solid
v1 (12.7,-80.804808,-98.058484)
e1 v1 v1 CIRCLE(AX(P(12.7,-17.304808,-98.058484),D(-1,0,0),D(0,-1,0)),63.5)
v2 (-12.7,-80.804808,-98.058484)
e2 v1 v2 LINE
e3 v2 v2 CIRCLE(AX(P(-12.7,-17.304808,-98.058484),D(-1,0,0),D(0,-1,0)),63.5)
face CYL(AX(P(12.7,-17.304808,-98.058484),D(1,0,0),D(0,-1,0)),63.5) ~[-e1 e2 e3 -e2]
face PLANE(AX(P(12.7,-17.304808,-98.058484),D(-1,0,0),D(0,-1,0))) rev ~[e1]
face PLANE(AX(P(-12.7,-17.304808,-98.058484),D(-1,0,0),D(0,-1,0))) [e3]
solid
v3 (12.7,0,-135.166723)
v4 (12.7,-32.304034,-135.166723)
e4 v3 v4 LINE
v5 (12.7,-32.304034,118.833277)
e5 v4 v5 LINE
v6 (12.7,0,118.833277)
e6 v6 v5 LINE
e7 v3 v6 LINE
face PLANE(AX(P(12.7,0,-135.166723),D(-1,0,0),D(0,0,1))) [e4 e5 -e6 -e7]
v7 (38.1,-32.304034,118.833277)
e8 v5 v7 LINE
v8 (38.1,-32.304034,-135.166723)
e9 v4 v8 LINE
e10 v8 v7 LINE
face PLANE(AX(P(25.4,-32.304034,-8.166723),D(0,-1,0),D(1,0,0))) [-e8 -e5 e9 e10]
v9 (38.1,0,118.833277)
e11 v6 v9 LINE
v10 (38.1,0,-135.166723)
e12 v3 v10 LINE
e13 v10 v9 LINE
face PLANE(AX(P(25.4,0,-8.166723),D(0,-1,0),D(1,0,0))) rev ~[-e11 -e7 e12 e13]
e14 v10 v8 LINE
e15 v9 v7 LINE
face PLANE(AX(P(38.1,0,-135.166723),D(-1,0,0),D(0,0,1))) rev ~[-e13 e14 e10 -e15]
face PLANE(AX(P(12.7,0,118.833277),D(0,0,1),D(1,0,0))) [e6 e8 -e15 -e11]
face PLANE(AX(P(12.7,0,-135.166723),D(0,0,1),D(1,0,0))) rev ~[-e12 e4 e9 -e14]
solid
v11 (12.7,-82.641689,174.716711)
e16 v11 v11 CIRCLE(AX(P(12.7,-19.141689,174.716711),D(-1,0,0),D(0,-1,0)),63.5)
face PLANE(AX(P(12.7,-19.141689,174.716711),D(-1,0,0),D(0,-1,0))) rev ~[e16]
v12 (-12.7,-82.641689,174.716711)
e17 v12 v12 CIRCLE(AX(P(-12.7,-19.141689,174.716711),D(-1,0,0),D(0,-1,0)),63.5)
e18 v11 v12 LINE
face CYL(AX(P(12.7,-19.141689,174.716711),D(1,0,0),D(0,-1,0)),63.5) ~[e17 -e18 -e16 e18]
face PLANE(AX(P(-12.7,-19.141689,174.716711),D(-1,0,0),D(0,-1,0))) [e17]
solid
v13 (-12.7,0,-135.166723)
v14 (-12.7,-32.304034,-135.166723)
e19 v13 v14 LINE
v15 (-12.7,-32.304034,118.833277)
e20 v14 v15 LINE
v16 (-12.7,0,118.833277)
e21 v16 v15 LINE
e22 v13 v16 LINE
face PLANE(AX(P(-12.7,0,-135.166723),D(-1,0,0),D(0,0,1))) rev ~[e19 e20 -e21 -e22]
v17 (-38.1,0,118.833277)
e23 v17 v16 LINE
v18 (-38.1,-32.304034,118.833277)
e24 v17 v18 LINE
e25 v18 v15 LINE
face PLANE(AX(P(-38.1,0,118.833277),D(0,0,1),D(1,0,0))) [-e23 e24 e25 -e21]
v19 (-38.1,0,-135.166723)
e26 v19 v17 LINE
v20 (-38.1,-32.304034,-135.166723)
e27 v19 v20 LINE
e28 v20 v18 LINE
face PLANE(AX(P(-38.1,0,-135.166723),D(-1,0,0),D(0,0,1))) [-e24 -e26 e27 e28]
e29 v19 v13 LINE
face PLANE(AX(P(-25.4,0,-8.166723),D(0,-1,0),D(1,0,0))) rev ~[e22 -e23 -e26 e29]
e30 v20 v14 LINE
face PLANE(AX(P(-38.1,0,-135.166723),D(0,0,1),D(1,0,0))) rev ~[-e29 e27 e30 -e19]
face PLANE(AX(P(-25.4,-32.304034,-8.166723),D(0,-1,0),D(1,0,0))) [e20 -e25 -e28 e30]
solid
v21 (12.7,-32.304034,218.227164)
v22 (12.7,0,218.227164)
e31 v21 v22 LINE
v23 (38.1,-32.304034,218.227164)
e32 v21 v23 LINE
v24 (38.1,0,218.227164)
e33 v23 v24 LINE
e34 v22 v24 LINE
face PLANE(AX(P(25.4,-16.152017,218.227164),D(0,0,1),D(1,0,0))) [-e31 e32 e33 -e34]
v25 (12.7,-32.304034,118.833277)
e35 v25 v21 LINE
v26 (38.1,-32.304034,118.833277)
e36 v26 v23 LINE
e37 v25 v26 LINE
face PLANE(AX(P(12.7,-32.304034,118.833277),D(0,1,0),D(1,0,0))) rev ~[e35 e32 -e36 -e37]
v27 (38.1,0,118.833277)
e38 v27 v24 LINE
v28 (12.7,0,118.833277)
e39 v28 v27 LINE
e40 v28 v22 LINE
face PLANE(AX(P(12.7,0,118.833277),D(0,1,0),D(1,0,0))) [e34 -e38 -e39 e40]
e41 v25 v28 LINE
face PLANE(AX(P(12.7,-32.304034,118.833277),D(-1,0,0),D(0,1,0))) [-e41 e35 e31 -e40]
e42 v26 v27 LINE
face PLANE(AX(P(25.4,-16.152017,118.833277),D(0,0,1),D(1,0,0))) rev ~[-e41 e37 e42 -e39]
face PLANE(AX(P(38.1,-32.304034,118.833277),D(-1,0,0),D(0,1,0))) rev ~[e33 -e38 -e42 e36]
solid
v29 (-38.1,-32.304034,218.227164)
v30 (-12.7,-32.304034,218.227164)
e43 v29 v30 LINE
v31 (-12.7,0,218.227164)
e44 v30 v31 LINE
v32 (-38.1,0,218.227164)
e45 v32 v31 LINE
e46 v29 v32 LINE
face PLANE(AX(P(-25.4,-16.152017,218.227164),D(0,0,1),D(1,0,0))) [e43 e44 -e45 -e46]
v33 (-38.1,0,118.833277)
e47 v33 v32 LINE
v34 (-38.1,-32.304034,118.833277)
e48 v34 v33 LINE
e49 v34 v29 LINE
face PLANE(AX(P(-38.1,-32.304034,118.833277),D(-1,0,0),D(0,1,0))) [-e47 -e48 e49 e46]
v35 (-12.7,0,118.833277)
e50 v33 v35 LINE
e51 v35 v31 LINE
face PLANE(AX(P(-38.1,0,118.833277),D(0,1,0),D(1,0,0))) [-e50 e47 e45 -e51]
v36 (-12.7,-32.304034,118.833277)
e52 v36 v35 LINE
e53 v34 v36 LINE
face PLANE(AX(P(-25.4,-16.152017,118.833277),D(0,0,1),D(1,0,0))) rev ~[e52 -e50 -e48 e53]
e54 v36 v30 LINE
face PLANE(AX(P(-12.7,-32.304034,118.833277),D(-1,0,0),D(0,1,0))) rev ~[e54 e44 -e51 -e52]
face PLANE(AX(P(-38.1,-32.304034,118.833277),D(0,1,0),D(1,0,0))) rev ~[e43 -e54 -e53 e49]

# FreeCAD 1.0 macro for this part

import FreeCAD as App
import Part
import Sketcher
Q = App.Units.Quantity


def add_polygon(sketch, points):
    """Adds a closed chain of lines whose ends are joined by coincident constraints."""
    first, n = sketch.GeometryCount, len(points)
    for a, b in zip(points, points[1:] + points[:1]):
        sketch.addGeometry(Part.LineSegment(App.Vector(*a, 0), App.Vector(*b, 0)), False)
    for i in range(n):
        sketch.addConstraint(Sketcher.Constraint("Coincident", first + i, 2, first + (i + 1) % n, 1))

doc = App.newDocument("Part")
params = doc.addObject("Spreadsheet::Sheet", "Params")
for row, (alias, value) in enumerate([
    ("sketch1_width", "1 in"),
    ("sketch1_height", "10 in"),
    ("pad1_length", "32.304034 mm"),
    ("sketch2_width", "1 in"),
    ("pad2_length", "99.393887 mm"),
    ("sketch3_diameter", "5 in"),
    ("pad3_length", "1 in"),
], start=1):
    params.set(f"A{row}", alias)
    params.set(f"B{row}", "=" + value)
    params.setAlias(f"B{row}", alias)

body = doc.addObject("PartDesign::Body", "Body")
body.AllowCompound = True

sketch1 = doc.addObject("Sketcher::SketchObject", "Sketch")
body.addObject(sketch1)
sketch1.AttachmentSupport = (doc.XZ_Plane, [""])
sketch1.MapMode = "FlatFace"
add_polygon(sketch1, [(-38, 119), (-38, -135), (-13, -135), (-13, 119)])
add_polygon(sketch1, [(13, 119), (13, -135), (38, -135), (38, 119)])
sketch1.addConstraint(Sketcher.Constraint("Vertical", 0))
sketch1.addConstraint(Sketcher.Constraint("Horizontal", 1))
sketch1.addConstraint(Sketcher.Constraint("Vertical", 2))
sketch1.addConstraint(Sketcher.Constraint("Horizontal", 3))
sketch1.addConstraint(Sketcher.Constraint("Vertical", 4))
sketch1.addConstraint(Sketcher.Constraint("Horizontal", 5))
sketch1.addConstraint(Sketcher.Constraint("Vertical", 6))
sketch1.addConstraint(Sketcher.Constraint("Horizontal", 7))
sketch1.addConstraint(Sketcher.Constraint("Symmetric", 1, 2, 4, 2, -2))
sketch1.addConstraint(Sketcher.Constraint("Symmetric", 3, 2, 6, 2, -2))
sketch1.addConstraint(Sketcher.Constraint("DistanceX", 1, 1, 1, 2, Q("1 in")))
sketch1.addConstraint(Sketcher.Constraint("DistanceY", 0, 2, 0, 1, Q("10 in")))
sketch1.addConstraint(Sketcher.Constraint("DistanceX", 1, 2, 4, 2, Q("1 in")))
sketch1.addConstraint(Sketcher.Constraint("DistanceY", 0, 2, -1, 1, 135.166723))
sketch1.setExpression("Constraints[18]", "Params.sketch1_width")
sketch1.setExpression("Constraints[19]", "Params.sketch1_height")
pad1 = doc.addObject("PartDesign::Pad", "Pad")
body.addObject(pad1)
pad1.Profile = sketch1
pad1.setExpression("Length", "Params.pad1_length")
body2 = doc.addObject("PartDesign::Body", "Body001")
body2.AllowCompound = True

sketch2 = doc.addObject("Sketcher::SketchObject", "Sketch001")
body2.addObject(sketch2)
sketch2.AttachmentSupport = (doc.getObject("XY_Plane001"), [""])
sketch2.MapMode = "FlatFace"
sketch2.AttachmentOffset = App.Placement(App.Vector(0, 0, 118.833277), App.Rotation())
add_polygon(sketch2, [(13, 0), (13, -32), (38, -32), (38, 0)])
add_polygon(sketch2, [(-38, 0), (-38, -32), (-13, -32), (-13, 0)])
sketch2.addConstraint(Sketcher.Constraint("Vertical", 0))
sketch2.addConstraint(Sketcher.Constraint("Horizontal", 1))
sketch2.addConstraint(Sketcher.Constraint("Vertical", 2))
sketch2.addConstraint(Sketcher.Constraint("Horizontal", 3))
sketch2.addConstraint(Sketcher.Constraint("Vertical", 4))
sketch2.addConstraint(Sketcher.Constraint("Horizontal", 5))
sketch2.addConstraint(Sketcher.Constraint("Vertical", 6))
sketch2.addConstraint(Sketcher.Constraint("Horizontal", 7))
sketch2.addConstraint(Sketcher.Constraint("Symmetric", 3, 2, 6, 2, -1, 1))
sketch2.addConstraint(Sketcher.Constraint("Symmetric", 1, 2, 4, 2, -2))
sketch2.addConstraint(Sketcher.Constraint("PointOnObject", 2, 2, -1))
sketch2.addConstraint(Sketcher.Constraint("DistanceX", 1, 1, 1, 2, Q("1 in")))
sketch2.addConstraint(Sketcher.Constraint("DistanceX", 4, 2, 0, 2, Q("2 in")))
sketch2.addConstraint(Sketcher.Constraint("DistanceY", 0, 2, 0, 1, 32.304034))
sketch2.setExpression("Constraints[19]", "Params.sketch2_width")
pad2 = doc.addObject("PartDesign::Pad", "Pad001")
body2.addObject(pad2)
pad2.Profile = sketch2
pad2.setExpression("Length", "Params.pad2_length")
body3 = doc.addObject("PartDesign::Body", "Body002")
body3.AllowCompound = True

sketch3 = doc.addObject("Sketcher::SketchObject", "Sketch002")
body3.addObject(sketch3)
sketch3.AttachmentSupport = (doc.getObject("YZ_Plane002"), [""])
sketch3.MapMode = "FlatFace"
sketch3.AttachmentOffset = App.Placement(App.Vector(0, 0, 0.5 * 25.4), App.Rotation())
sketch3.addGeometry(Part.Circle(App.Vector(-19, 175, 0), App.Vector(0, 0, 1), 64), False)
sketch3.addGeometry(Part.Circle(App.Vector(-17, -98, 0), App.Vector(0, 0, 1), 64), False)
sketch3.addConstraint(Sketcher.Constraint("Equal", 0, 1))
sketch3.addConstraint(Sketcher.Constraint("Diameter", 0, Q("5 in")))
sketch3.addConstraint(Sketcher.Constraint("DistanceX", 0, 3, -1, 1, 19.141689))
sketch3.addConstraint(Sketcher.Constraint("DistanceY", -1, 1, 0, 3, 174.716711))
sketch3.addConstraint(Sketcher.Constraint("DistanceX", 1, 3, -1, 1, 17.304808))
sketch3.addConstraint(Sketcher.Constraint("DistanceY", 1, 3, -1, 1, 98.058484))
sketch3.setExpression("Constraints[1]", "Params.sketch3_diameter")
pad3 = doc.addObject("PartDesign::Pad", "Pad002")
body3.addObject(pad3)
pad3.Profile = sketch3
pad3.setExpression("Length", "Params.pad3_length")
pad3.Reversed = True

doc.recompute()
